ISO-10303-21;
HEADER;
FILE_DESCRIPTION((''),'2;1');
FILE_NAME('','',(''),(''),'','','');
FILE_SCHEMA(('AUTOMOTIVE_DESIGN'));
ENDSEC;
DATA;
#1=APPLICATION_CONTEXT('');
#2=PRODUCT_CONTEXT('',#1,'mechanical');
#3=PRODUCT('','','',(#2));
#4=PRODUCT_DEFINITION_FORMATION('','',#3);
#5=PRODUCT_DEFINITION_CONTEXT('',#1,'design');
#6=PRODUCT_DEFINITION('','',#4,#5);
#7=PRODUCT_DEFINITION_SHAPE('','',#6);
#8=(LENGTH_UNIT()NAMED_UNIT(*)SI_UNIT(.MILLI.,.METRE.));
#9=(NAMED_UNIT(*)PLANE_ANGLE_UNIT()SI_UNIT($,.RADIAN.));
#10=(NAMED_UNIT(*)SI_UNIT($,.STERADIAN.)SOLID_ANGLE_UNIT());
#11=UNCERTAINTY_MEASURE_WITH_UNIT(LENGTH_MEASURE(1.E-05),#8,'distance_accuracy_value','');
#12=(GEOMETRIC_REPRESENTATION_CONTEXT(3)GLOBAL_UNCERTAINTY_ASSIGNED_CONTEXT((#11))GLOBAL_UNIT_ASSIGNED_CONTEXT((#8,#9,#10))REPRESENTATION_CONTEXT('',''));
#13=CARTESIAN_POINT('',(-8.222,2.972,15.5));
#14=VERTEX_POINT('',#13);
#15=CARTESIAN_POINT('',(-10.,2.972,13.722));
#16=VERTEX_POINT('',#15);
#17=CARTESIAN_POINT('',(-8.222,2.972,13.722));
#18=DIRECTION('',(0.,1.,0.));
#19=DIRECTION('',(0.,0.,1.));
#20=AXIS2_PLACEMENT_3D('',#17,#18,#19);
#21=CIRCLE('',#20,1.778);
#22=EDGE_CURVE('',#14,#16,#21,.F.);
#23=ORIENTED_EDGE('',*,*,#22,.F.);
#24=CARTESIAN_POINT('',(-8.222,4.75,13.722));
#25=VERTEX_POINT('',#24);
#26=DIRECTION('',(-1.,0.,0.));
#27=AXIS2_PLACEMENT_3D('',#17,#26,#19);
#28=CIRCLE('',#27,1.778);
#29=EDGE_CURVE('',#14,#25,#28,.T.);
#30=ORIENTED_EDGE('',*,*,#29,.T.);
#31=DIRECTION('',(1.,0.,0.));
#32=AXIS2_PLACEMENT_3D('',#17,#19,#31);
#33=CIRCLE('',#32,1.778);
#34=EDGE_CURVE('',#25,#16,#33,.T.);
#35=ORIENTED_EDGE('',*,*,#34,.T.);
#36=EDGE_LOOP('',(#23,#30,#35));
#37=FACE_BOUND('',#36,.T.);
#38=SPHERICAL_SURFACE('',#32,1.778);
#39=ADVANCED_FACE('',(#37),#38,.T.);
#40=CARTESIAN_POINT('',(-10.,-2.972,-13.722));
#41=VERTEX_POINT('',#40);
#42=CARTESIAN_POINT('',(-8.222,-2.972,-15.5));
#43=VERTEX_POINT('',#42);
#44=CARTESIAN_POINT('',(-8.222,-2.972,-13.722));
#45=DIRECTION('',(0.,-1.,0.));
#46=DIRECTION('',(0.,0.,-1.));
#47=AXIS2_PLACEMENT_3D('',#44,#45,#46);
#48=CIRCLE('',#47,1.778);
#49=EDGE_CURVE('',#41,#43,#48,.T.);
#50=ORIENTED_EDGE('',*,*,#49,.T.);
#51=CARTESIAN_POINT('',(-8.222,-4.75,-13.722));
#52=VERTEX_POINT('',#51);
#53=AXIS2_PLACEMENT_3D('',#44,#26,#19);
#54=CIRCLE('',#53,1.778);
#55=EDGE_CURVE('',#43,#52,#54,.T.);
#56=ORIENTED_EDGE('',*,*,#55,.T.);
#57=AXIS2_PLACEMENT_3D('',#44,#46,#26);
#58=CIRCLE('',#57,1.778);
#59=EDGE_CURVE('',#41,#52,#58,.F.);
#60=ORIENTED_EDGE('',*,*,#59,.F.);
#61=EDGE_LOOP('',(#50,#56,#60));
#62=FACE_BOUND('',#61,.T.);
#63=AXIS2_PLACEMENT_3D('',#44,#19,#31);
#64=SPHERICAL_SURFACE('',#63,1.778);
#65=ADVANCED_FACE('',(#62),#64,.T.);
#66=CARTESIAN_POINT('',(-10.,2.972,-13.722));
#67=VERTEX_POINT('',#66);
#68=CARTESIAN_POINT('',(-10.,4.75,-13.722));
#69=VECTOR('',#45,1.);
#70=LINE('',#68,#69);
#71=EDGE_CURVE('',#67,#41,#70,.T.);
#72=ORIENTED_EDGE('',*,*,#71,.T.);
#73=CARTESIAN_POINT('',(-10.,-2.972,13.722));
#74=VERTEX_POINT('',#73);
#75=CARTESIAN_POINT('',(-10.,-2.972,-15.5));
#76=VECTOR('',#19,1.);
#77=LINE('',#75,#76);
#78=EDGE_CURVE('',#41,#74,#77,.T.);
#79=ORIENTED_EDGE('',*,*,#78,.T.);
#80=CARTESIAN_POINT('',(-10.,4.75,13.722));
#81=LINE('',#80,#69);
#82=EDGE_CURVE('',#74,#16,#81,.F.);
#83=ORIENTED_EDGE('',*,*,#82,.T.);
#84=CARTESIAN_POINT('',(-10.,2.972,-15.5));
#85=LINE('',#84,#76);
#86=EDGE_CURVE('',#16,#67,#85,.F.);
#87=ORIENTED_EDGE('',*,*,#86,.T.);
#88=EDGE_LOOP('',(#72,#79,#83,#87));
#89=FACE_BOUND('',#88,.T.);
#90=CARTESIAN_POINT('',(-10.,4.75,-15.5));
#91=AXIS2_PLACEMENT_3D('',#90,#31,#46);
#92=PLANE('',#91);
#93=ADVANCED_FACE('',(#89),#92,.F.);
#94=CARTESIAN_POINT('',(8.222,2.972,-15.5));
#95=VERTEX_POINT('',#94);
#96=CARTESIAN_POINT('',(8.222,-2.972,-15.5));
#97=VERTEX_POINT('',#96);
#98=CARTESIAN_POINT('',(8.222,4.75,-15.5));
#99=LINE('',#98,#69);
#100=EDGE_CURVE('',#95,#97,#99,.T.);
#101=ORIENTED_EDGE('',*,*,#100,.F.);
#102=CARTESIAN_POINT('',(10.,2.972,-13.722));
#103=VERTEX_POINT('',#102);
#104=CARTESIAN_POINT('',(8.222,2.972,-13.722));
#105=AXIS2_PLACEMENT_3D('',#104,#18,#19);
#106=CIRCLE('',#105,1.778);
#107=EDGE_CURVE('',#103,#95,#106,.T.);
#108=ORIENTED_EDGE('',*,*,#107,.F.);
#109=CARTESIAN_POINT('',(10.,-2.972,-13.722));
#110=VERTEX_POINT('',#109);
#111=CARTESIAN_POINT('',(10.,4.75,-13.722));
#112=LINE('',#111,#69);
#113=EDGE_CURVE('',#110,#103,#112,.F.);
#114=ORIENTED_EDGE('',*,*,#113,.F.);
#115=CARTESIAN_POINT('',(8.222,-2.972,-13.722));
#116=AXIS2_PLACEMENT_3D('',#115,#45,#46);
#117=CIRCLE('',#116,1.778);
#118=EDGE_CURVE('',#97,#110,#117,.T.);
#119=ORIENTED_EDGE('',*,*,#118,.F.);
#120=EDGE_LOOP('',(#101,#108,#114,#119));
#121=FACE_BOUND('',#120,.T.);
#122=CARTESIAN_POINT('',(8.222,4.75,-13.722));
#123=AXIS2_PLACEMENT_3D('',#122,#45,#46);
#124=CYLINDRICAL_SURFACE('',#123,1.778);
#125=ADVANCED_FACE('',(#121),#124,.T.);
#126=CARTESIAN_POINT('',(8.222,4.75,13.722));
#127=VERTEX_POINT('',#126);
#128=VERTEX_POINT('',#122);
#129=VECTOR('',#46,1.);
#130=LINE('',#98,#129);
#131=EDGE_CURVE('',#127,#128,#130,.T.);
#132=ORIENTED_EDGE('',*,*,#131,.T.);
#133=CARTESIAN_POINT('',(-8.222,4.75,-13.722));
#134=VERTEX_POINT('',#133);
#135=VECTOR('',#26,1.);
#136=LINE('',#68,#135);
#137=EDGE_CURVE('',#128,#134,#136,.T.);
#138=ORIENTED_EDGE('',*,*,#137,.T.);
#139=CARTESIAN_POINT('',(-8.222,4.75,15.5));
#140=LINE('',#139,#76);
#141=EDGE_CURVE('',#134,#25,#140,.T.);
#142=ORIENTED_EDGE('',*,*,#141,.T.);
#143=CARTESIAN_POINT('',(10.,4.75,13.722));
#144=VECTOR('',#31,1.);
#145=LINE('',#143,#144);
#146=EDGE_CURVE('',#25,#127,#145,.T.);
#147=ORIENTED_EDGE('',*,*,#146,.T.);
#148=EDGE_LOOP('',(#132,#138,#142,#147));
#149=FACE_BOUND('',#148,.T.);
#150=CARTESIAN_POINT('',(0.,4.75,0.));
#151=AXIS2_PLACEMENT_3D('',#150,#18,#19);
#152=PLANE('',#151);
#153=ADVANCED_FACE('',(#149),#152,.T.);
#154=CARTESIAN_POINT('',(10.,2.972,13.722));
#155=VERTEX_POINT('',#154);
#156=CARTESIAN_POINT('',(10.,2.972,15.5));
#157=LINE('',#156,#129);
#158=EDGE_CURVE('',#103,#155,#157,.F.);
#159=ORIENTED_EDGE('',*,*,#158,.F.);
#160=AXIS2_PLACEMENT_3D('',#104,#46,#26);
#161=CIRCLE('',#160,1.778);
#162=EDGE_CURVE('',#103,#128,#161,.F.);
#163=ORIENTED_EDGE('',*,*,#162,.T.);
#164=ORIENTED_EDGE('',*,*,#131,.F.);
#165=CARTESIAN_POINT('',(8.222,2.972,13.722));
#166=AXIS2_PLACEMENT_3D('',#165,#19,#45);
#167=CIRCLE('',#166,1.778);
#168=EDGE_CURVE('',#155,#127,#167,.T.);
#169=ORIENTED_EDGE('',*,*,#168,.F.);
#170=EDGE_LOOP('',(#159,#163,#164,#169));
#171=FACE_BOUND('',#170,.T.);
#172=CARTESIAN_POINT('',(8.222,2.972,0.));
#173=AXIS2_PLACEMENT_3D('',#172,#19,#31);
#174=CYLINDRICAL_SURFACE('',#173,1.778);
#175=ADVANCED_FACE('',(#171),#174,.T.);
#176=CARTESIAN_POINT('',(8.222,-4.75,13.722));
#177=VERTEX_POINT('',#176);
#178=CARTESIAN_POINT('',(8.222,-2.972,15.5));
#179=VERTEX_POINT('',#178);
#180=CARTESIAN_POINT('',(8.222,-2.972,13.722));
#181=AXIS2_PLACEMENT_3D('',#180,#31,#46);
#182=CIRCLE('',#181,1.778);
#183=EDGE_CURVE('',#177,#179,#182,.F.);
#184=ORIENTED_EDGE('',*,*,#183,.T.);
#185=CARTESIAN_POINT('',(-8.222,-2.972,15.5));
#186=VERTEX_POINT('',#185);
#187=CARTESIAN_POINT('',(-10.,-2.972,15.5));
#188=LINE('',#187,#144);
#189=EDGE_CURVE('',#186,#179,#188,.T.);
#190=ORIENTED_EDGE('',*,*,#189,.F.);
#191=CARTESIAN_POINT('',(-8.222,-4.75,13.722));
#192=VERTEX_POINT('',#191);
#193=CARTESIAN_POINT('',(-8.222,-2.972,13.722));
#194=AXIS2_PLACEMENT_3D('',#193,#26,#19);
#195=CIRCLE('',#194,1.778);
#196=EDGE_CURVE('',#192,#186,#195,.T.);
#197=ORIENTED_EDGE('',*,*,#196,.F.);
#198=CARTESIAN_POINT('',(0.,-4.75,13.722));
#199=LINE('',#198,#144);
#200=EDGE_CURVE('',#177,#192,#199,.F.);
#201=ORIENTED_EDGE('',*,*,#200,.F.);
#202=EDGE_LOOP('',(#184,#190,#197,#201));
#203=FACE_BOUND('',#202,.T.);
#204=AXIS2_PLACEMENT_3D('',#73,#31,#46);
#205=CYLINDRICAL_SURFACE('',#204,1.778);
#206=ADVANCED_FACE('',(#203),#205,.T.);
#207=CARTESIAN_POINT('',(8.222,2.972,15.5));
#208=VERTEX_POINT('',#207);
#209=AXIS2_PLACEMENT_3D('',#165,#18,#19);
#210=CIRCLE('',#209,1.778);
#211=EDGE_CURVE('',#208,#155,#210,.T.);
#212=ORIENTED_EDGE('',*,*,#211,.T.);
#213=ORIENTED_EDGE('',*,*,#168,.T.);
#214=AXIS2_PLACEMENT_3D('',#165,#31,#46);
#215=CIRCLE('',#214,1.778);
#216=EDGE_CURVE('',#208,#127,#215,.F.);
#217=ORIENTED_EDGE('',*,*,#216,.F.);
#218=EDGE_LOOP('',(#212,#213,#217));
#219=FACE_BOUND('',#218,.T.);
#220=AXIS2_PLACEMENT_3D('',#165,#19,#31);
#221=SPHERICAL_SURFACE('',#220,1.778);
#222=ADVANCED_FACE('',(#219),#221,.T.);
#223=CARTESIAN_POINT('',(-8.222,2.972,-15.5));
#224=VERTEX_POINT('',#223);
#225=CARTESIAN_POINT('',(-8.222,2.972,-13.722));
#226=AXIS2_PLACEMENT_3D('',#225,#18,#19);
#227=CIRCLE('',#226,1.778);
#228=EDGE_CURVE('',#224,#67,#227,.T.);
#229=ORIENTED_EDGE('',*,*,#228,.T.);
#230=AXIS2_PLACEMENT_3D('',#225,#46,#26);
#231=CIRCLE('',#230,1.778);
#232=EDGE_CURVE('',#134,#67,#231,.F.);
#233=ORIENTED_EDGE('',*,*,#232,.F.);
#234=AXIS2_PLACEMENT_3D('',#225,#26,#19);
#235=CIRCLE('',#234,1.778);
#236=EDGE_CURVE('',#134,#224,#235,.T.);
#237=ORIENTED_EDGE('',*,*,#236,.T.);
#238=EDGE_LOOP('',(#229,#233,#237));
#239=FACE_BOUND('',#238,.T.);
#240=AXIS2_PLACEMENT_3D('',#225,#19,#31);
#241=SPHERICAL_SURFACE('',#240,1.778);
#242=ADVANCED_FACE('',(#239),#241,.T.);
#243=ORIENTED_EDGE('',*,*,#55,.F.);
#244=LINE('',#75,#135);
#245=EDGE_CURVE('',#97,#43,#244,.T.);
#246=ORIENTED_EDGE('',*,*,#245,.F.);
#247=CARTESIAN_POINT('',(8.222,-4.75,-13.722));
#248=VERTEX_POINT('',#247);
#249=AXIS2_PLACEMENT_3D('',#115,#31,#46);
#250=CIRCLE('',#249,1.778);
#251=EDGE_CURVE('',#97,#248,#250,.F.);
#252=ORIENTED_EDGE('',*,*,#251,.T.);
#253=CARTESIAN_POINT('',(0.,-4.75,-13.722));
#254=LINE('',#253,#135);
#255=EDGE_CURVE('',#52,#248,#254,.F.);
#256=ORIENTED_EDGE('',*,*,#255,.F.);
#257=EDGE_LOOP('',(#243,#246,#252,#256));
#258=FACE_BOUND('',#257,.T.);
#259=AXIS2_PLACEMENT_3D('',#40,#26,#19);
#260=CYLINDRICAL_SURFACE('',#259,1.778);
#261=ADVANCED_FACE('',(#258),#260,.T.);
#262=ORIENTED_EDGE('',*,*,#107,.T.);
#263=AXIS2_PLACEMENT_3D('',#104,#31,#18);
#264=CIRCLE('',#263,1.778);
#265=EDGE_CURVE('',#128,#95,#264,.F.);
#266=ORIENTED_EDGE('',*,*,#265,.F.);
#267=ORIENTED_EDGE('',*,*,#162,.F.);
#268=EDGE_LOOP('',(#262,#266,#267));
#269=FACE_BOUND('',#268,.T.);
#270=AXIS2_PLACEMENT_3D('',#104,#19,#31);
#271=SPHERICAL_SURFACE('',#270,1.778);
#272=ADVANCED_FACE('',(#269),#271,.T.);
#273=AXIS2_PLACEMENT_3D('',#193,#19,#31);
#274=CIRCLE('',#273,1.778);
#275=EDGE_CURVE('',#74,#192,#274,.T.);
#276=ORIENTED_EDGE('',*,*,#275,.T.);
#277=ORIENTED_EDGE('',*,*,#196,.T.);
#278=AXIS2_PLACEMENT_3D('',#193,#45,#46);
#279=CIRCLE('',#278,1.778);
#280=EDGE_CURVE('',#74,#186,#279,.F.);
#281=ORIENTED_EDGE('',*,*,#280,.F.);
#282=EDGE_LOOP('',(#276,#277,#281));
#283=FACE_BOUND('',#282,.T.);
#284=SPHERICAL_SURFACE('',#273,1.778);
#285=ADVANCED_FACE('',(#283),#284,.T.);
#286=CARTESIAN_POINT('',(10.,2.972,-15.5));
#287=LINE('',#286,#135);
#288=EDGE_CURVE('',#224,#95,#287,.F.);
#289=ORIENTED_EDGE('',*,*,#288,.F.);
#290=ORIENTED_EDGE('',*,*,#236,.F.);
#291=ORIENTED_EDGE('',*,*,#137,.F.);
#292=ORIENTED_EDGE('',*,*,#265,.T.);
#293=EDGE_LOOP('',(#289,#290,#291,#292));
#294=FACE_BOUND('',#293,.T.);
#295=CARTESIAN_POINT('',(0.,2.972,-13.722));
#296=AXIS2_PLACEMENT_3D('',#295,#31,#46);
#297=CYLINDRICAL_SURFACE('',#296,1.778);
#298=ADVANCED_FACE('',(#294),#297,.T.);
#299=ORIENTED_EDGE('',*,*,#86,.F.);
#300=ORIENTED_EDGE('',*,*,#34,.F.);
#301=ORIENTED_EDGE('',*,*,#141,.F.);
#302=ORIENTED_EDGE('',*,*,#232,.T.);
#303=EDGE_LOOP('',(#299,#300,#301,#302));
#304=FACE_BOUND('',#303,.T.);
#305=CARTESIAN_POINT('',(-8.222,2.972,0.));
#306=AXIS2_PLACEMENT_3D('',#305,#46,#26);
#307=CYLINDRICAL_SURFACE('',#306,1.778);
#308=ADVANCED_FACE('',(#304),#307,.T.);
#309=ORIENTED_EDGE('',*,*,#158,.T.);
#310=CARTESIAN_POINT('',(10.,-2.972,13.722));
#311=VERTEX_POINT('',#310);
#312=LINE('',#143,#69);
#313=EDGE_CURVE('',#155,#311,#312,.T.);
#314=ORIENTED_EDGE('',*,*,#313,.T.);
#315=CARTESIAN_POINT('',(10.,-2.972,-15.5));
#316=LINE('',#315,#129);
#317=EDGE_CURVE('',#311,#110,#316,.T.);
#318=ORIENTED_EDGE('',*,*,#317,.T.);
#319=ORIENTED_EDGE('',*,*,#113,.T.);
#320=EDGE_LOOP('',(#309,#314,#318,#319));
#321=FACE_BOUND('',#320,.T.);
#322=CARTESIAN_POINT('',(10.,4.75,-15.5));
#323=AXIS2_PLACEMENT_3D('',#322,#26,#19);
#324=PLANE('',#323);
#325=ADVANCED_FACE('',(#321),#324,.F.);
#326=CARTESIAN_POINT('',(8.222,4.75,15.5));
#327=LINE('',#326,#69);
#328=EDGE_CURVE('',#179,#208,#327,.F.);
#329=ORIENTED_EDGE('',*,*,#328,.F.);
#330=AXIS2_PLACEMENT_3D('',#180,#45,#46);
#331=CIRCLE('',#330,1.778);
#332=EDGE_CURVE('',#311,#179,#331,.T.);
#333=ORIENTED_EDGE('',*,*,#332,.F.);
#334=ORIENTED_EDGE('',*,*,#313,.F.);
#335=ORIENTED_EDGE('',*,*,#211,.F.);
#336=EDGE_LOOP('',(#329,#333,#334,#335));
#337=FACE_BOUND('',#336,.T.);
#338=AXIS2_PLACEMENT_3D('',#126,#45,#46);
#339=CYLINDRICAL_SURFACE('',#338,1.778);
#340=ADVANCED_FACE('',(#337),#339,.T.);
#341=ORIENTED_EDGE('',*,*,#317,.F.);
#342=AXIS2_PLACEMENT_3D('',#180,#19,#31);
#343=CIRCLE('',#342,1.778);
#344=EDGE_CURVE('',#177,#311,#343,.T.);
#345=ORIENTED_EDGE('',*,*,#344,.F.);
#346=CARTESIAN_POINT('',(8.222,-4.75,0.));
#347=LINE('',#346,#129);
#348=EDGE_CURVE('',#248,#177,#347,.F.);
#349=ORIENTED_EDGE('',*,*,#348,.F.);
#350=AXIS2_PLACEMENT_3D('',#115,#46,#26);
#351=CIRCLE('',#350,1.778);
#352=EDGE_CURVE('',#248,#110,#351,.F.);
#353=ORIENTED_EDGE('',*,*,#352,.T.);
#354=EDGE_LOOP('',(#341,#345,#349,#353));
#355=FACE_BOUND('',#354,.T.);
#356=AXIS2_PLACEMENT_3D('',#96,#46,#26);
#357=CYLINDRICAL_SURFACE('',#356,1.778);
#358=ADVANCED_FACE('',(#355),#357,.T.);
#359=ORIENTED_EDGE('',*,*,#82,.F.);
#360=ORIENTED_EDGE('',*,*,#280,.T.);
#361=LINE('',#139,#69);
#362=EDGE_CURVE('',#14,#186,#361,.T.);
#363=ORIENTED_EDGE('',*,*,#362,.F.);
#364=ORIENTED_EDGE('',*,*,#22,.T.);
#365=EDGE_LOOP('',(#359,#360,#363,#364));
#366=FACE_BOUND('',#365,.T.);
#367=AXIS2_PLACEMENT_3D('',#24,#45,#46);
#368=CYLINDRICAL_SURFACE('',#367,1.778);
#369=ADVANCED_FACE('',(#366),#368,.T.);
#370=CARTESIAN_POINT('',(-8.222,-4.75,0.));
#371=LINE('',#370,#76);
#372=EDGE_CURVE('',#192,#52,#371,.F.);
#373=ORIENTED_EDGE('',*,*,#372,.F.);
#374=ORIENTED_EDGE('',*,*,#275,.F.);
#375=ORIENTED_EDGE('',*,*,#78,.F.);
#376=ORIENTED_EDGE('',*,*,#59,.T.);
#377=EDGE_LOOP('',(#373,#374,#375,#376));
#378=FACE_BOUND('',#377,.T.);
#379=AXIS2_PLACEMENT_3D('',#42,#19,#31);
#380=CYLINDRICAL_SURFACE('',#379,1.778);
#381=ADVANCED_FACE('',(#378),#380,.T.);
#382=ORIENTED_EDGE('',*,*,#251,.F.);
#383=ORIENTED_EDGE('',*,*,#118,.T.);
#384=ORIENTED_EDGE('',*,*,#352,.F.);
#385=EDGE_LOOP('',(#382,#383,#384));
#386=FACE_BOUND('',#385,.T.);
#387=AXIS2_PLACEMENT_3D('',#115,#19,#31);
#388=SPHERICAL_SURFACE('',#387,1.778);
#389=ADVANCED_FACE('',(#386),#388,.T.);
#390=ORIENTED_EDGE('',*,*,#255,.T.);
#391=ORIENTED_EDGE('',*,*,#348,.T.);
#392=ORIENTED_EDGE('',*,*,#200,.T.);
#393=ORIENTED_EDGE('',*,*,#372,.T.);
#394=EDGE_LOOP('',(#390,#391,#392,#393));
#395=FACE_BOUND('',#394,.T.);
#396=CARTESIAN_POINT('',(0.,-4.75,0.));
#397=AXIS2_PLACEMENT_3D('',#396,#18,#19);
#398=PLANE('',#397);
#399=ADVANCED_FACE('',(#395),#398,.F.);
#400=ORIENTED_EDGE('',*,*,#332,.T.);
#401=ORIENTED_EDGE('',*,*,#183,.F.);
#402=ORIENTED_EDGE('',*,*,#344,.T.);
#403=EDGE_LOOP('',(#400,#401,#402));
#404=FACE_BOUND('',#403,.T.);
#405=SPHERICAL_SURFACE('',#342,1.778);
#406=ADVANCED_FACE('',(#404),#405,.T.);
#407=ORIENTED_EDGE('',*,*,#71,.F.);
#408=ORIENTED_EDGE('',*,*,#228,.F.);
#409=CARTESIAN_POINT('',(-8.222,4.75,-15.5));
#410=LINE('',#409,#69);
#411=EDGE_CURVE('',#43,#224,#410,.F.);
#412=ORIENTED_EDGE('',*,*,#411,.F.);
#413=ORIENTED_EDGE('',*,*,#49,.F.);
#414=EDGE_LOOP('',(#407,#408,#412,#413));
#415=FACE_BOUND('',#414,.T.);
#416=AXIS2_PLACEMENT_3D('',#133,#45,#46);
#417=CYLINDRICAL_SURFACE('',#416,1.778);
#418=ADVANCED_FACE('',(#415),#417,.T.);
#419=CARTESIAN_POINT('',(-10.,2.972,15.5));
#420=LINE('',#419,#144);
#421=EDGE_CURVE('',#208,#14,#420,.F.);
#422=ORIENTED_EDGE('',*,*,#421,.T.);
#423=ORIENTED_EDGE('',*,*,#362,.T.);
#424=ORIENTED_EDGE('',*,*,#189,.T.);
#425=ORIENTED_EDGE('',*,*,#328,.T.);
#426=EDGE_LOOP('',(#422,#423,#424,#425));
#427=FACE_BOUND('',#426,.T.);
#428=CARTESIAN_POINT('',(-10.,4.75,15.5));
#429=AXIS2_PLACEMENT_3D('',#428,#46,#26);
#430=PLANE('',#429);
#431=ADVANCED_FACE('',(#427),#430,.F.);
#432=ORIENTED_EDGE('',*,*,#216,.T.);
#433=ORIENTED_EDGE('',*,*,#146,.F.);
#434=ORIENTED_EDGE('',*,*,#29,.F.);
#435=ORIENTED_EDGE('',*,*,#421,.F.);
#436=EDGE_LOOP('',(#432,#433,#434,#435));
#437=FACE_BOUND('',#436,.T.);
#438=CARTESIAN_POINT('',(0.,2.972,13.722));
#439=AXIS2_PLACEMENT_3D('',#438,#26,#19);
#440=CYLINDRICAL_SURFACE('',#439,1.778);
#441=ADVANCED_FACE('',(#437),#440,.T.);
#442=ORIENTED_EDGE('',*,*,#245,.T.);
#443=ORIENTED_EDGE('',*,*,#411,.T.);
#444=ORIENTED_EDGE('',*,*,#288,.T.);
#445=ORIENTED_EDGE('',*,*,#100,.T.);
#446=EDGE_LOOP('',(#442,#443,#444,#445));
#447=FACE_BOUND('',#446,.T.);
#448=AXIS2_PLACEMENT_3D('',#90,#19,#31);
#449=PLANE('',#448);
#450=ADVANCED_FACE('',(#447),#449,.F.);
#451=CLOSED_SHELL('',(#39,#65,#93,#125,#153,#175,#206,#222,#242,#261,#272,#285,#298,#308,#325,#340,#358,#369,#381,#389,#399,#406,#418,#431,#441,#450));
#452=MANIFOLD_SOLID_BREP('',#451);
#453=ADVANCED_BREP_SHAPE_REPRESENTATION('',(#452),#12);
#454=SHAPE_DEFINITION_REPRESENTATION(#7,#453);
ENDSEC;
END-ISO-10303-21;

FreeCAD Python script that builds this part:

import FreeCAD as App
import Part
import Sketcher

doc = App.newDocument("Part")
params = doc.addObject("Spreadsheet::Sheet", "Params")
for row, (alias, value) in enumerate([
    ("sketch1_width", "20 mm"),
    ("sketch1_height", "31 mm"),
    ("pad1_length", "9.5 mm"),
    ("fillet_radius", "1.778 mm"),
], start=1):
    params.set(f"A{row}", alias)
    params.set(f"B{row}", "=" + value)
    params.setAlias(f"B{row}", alias)

body = doc.addObject("PartDesign::Body", "Body")

sketch1 = body.newObject("Sketcher::SketchObject", "Sketch")
sketch1.AttachmentSupport = (doc.getObject("XZ_Plane"), [""])
sketch1.MapMode = "FlatFace"
sketch1.addGeometry([
    Part.LineSegment(App.Vector(-10, -15, 0), App.Vector(-10, 15, 0)),
    Part.LineSegment(App.Vector(-10, 15, 0), App.Vector(10, 15, 0)),
    Part.LineSegment(App.Vector(10, 15, 0), App.Vector(10, -15, 0)),
    Part.LineSegment(App.Vector(10, -15, 0), App.Vector(-10, -15, 0)),
], False)
sketch1.addConstraint([
    Sketcher.Constraint("Coincident", 0, 2, 1, 1),
    Sketcher.Constraint("Coincident", 1, 2, 2, 1),
    Sketcher.Constraint("Coincident", 2, 2, 3, 1),
    Sketcher.Constraint("Coincident", 3, 2, 0, 1),
    Sketcher.Constraint("Vertical", 0),
    Sketcher.Constraint("Horizontal", 1),
    Sketcher.Constraint("Vertical", 2),
    Sketcher.Constraint("Horizontal", 3),
    Sketcher.Constraint("Symmetric", 0, 2, 2, 2, -1, 1),
    Sketcher.Constraint("DistanceX", 1, 1, 1, 2, 20.0),
    Sketcher.Constraint("DistanceY", 0, 1, 0, 2, 31.0),
])
sketch1.setExpression("Constraints[9]", "Params.sketch1_width")
sketch1.setExpression("Constraints[10]", "Params.sketch1_height")
pad1 = body.newObject("PartDesign::Pad", "Pad")
pad1.Profile = sketch1
pad1.setExpression("Length", "Params.pad1_length")
pad1.Midplane = True
doc.recompute()

fillet = body.newObject("PartDesign::Fillet", "Fillet")
fillet.Base = (pad1, ["Edge1"])
fillet.UseAllEdges = True
fillet.setExpression("Radius", "Params.fillet_radius")

doc.recompute()
